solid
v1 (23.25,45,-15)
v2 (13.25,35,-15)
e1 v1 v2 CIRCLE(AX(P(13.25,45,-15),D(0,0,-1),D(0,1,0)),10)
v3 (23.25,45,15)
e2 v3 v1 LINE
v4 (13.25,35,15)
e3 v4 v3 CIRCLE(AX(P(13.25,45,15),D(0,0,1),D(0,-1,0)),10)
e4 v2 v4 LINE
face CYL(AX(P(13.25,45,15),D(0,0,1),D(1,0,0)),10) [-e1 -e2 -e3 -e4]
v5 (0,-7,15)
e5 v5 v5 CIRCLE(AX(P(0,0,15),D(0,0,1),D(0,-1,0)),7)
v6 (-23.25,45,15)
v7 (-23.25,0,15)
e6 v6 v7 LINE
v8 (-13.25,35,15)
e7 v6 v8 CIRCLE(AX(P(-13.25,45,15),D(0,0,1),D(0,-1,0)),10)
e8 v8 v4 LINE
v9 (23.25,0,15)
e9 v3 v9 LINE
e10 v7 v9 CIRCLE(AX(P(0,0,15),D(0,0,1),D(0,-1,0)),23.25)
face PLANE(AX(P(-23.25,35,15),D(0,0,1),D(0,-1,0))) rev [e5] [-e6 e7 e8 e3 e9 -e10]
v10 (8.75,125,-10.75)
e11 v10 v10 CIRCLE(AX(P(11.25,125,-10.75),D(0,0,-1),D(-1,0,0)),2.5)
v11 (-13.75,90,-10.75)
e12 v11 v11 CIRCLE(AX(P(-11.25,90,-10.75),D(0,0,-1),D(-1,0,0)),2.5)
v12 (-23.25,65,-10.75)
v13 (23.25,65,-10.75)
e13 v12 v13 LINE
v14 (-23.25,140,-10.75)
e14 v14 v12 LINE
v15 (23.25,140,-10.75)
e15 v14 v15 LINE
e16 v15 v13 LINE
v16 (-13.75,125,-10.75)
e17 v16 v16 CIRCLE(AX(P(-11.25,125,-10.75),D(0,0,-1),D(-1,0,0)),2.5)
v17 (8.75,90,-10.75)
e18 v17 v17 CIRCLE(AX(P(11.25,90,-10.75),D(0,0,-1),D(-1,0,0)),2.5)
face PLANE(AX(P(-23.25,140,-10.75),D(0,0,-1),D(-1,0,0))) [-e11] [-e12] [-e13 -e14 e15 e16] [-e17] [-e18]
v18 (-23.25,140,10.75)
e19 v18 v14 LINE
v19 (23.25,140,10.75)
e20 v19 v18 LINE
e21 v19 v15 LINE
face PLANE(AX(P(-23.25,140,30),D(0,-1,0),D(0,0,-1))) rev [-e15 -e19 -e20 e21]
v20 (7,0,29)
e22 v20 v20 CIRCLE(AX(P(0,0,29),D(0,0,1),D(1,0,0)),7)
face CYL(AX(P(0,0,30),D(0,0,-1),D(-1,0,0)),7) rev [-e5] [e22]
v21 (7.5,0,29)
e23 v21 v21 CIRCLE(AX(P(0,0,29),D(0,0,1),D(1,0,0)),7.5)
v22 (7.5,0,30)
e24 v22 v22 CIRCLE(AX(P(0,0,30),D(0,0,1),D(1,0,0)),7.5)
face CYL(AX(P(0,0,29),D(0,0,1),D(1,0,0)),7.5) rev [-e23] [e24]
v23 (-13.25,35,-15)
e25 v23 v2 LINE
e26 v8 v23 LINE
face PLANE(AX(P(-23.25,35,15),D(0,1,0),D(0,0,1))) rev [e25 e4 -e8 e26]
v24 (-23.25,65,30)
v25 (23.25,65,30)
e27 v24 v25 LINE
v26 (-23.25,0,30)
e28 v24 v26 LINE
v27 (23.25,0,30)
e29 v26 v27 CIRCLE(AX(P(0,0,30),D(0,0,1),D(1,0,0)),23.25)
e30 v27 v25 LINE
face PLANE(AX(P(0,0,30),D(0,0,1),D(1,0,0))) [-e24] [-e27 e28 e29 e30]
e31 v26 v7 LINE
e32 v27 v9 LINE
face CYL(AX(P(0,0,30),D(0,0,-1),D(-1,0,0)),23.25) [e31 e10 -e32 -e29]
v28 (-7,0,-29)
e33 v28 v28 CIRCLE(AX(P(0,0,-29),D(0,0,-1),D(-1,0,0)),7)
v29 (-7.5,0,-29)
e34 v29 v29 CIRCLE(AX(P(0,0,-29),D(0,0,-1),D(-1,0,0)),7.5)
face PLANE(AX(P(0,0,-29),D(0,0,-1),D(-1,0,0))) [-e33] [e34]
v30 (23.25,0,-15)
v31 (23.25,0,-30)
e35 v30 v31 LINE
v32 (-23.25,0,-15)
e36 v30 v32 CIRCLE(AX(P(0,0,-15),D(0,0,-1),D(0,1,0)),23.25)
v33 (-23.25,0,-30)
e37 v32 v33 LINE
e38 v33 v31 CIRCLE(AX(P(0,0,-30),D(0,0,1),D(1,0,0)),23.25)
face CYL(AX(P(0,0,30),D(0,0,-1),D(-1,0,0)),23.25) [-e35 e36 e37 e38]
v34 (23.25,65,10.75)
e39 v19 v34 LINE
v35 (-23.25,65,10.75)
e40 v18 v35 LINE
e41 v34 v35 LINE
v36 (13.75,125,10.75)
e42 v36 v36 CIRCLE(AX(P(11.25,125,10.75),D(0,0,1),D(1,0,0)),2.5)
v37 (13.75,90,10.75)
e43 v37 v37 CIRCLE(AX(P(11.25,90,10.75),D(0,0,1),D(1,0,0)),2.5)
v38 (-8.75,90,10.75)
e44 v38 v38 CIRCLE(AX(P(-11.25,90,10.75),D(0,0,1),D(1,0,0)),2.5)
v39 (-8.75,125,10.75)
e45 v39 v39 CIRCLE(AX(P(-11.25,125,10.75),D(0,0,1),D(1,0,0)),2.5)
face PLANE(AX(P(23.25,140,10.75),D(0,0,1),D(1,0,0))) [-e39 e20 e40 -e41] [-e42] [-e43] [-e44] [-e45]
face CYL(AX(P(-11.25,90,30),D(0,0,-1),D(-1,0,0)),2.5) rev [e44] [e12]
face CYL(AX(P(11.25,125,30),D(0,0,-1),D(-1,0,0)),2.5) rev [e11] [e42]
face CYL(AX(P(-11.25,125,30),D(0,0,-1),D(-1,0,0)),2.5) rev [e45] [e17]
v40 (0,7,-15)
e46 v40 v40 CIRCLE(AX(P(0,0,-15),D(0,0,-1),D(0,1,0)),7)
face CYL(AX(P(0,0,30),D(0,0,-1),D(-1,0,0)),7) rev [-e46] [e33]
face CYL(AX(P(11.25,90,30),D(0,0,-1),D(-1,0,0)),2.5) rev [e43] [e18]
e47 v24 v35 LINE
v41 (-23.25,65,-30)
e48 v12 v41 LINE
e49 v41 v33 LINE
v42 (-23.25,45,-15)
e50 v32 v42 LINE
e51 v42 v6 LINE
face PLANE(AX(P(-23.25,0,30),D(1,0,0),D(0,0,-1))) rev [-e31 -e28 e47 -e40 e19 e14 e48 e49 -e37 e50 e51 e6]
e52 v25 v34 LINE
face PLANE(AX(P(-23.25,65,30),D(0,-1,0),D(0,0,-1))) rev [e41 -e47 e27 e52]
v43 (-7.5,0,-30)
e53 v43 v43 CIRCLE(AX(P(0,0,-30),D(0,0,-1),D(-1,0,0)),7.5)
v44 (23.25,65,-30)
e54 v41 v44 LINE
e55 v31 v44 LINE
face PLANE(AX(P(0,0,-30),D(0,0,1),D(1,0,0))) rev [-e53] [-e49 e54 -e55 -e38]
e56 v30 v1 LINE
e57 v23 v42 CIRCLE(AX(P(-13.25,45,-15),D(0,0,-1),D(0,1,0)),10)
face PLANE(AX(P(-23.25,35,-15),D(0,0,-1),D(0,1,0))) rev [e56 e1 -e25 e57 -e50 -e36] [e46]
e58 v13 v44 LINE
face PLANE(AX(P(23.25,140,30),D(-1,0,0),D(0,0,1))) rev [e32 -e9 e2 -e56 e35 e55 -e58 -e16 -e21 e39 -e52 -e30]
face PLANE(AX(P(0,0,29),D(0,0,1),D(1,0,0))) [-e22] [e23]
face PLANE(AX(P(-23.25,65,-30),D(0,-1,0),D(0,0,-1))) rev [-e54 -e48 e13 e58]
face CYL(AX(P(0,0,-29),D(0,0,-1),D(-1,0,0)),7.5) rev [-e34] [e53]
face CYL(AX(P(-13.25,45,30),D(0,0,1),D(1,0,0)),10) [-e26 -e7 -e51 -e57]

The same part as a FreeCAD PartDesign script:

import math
import FreeCAD as App
import Part
import Sketcher


def edges_at(feature, points):
    """Names of the edges that pass closest to the given points."""
    edges = feature.Shape.Edges
    near = lambda p: min(range(len(edges)), key=lambda i: edges[i].distToShape(Part.Vertex(*p))[0])
    return sorted({f"Edge{near(p) + 1}" for p in points})

doc = App.newDocument("Part")
body = doc.addObject("PartDesign::Body", "Body")

sketch1 = body.newObject("Sketcher::SketchObject", "Sketch")
sketch1.AttachmentSupport = (doc.getObject("XY_Plane"), [""])
sketch1.MapMode = "FlatFace"
sketch1.addGeometry([
    Part.LineSegment(App.Vector(-23.2, 140, 0), App.Vector(-23.2, 0, 0)),
    Part.ArcOfCircle(Part.Circle(App.Vector(0, 0, 0), App.Vector(0, 0, 1), 23.2), math.radians(180), math.radians(360)),
    Part.LineSegment(App.Vector(23.2, 0, 0), App.Vector(23.2, 140, 0)),
    Part.LineSegment(App.Vector(23.2, 140, 0), App.Vector(-23.2, 140, 0)),
    Part.Circle(App.Vector(0, 0, 0), App.Vector(0, 0, 1), 7),
    Part.Circle(App.Vector(11.2, 90, 0), App.Vector(0, 0, 1), 2.5),
    Part.Circle(App.Vector(11.2, 125, 0), App.Vector(0, 0, 1), 2.5),
    Part.Circle(App.Vector(-11.2, 90, 0), App.Vector(0, 0, 1), 2.5),
    Part.Circle(App.Vector(-11.2, 125, 0), App.Vector(0, 0, 1), 2.5),
], False)
sketch1.addConstraint([
    Sketcher.Constraint("Tangent", 0, 2, 1, 1),
    Sketcher.Constraint("Tangent", 1, 2, 2, 1),
    Sketcher.Constraint("Coincident", 2, 2, 3, 1),
    Sketcher.Constraint("Coincident", 3, 2, 0, 1),
    Sketcher.Constraint("Vertical", 0),
    Sketcher.Constraint("Vertical", 2),
    Sketcher.Constraint("Horizontal", 3),
    Sketcher.Constraint("Coincident", 1, 3, -1, 1),
    Sketcher.Constraint("Coincident", 4, 3, -1, 1),
    Sketcher.Constraint("Equal", 5, 6),
    Sketcher.Constraint("Equal", 6, 7),
    Sketcher.Constraint("Equal", 7, 8),
    Sketcher.Constraint("Symmetric", 5, 3, 7, 3, -2),
    Sketcher.Constraint("Symmetric", 6, 3, 8, 3, -2),
    Sketcher.Constraint("Vertical", 5, 3, 6, 3),
    Sketcher.Constraint("Diameter", 4, 14.0),
    Sketcher.Constraint("Diameter", 5, 5.0),
    Sketcher.Constraint("DistanceY", 0, 2, 0, 1, 140.0),
    Sketcher.Constraint("Radius", 1, 23.25),
    Sketcher.Constraint("DistanceY", -1, 1, 5, 3, 90.0),
    Sketcher.Constraint("DistanceY", -1, 1, 6, 3, 125.0),
    Sketcher.Constraint("DistanceX", 0, 2, 7, 3, 12.0),
])
pad1 = body.newObject("PartDesign::Pad", "Pad")
pad1.Profile = sketch1
pad1.Length = 60
pad1.Midplane = True

sketch2 = body.newObject("Sketcher::SketchObject", "Sketch001")
sketch2.AttachmentSupport = (doc.getObject("YZ_Plane"), [""])
sketch2.MapMode = "FlatFace"
sketch2.AttachmentOffset = App.Placement(App.Vector(0, 0, 23.25), App.Rotation())
sketch2.addGeometry([
    Part.LineSegment(App.Vector(35, 15, 0), App.Vector(-23, 15, 0)),
    Part.LineSegment(App.Vector(-23, 15, 0), App.Vector(-23, -15, 0)),
    Part.LineSegment(App.Vector(-23, -15, 0), App.Vector(35, -15, 0)),
    Part.LineSegment(App.Vector(35, -15, 0), App.Vector(35, 15, 0)),
], False)
sketch2.addConstraint([
    Sketcher.Constraint("Coincident", 0, 2, 1, 1),
    Sketcher.Constraint("Coincident", 1, 2, 2, 1),
    Sketcher.Constraint("Coincident", 2, 2, 3, 1),
    Sketcher.Constraint("Coincident", 3, 2, 0, 1),
    Sketcher.Constraint("Horizontal", 0),
    Sketcher.Constraint("Vertical", 1),
    Sketcher.Constraint("Horizontal", 2),
    Sketcher.Constraint("Vertical", 3),
    Sketcher.Constraint("DistanceY", 1, 2, 1, 1, 30.0),
    Sketcher.Constraint("DistanceY", -1, 1, 0, 2, 15.0),
    Sketcher.Constraint("DistanceX", -1, 1, 2, 2, 35.0),
    Sketcher.Constraint("DistanceX", 0, 2, 0, 1, 58.25),
])
pocket1 = body.newObject("PartDesign::Pocket", "Pocket")
pocket1.Profile = sketch2
pocket1.Type = "ThroughAll"

sketch3 = body.newObject("Sketcher::SketchObject", "Sketch002")
sketch3.AttachmentSupport = (doc.getObject("XY_Plane"), [""])
sketch3.MapMode = "FlatFace"
sketch3.AttachmentOffset = App.Placement(App.Vector(0, 0, 30), App.Rotation())
sketch3.addGeometry(Part.Circle(App.Vector(0, 0, 0), App.Vector(0, 0, 1), 8), False)
sketch3.addConstraint([
    Sketcher.Constraint("Coincident", 0, 3, -1, 1),
    Sketcher.Constraint("Diameter", 0, 15.0),
])
pocket2 = body.newObject("PartDesign::Pocket", "Pocket001")
pocket2.Profile = sketch3
pocket2.Length = 1

sketch4 = body.newObject("Sketcher::SketchObject", "Sketch003")
sketch4.AttachmentSupport = (doc.getObject("XY_Plane"), [""])
sketch4.MapMode = "FlatFace"
sketch4.AttachmentOffset = App.Placement(App.Vector(0, 0, -29), App.Rotation())
sketch4.addGeometry(Part.Circle(App.Vector(0, 0, 0), App.Vector(0, 0, 1), 8), False)
sketch4.addConstraint([
    Sketcher.Constraint("Coincident", 0, 3, -1, 1),
    Sketcher.Constraint("Diameter", 0, 15.0),
])
pocket3 = body.newObject("PartDesign::Pocket", "Pocket002")
pocket3.Profile = sketch4
pocket3.Length = 1

sketch5 = body.newObject("Sketcher::SketchObject", "Sketch004")
sketch5.AttachmentSupport = (doc.getObject("YZ_Plane"), [""])
sketch5.MapMode = "FlatFace"
sketch5.AttachmentOffset = App.Placement(App.Vector(0, 0, 23.25), App.Rotation())
sketch5.addGeometry([
    Part.LineSegment(App.Vector(140, 30, 0), App.Vector(65, 30, 0)),
    Part.LineSegment(App.Vector(65, 30, 0), App.Vector(65, 13, 0)),
    Part.LineSegment(App.Vector(65, 13, 0), App.Vector(140, 13, 0)),
    Part.LineSegment(App.Vector(140, 13, 0), App.Vector(140, 30, 0)),
    Part.LineSegment(App.Vector(140, -13, 0), App.Vector(65, -13, 0)),
    Part.LineSegment(App.Vector(65, -13, 0), App.Vector(65, -30, 0)),
    Part.LineSegment(App.Vector(65, -30, 0), App.Vector(140, -30, 0)),
    Part.LineSegment(App.Vector(140, -30, 0), App.Vector(140, -13, 0)),
], False)
sketch5.addConstraint([
    Sketcher.Constraint("Coincident", 0, 2, 1, 1),
    Sketcher.Constraint("Coincident", 1, 2, 2, 1),
    Sketcher.Constraint("Coincident", 2, 2, 3, 1),
    Sketcher.Constraint("Coincident", 3, 2, 0, 1),
    Sketcher.Constraint("Coincident", 4, 2, 5, 1),
    Sketcher.Constraint("Coincident", 5, 2, 6, 1),
    Sketcher.Constraint("Coincident", 6, 2, 7, 1),
    Sketcher.Constraint("Coincident", 7, 2, 4, 1),
    Sketcher.Constraint("Horizontal", 0),
    Sketcher.Constraint("Vertical", 1),
    Sketcher.Constraint("Horizontal", 2),
    Sketcher.Constraint("Vertical", 3),
    Sketcher.Constraint("Horizontal", 4),
    Sketcher.Constraint("Vertical", 5),
    Sketcher.Constraint("Horizontal", 6),
    Sketcher.Constraint("Vertical", 7),
    Sketcher.Constraint("Symmetric", 1, 2, 4, 2, -1),
    Sketcher.Constraint("Symmetric", 3, 2, 6, 2, -1),
    Sketcher.Constraint("DistanceX", 0, 2, 0, 1, 75.0),
    Sketcher.Constraint("DistanceY", 1, 2, 1, 1, 17.3),
    Sketcher.Constraint("DistanceX", -1, 1, 0, 2, 65.0),
    Sketcher.Constraint("DistanceY", -1, 1, 0, 2, 30.0),
])
pocket4 = body.newObject("PartDesign::Pocket", "Pocket003")
pocket4.Profile = sketch5
pocket4.Type = "ThroughAll"

sketch6 = body.newObject("Sketcher::SketchObject", "Sketch005")
sketch6.AttachmentSupport = (doc.getObject("XZ_Plane"), [""])
sketch6.MapMode = "FlatFace"
sketch6.AttachmentOffset = App.Placement(App.Vector(0, 0, -65), App.Rotation())
sketch6.addGeometry([
    Part.LineSegment(App.Vector(-23.2, -12.7, 0), App.Vector(-23.2, -10.8, 0)),
    Part.LineSegment(App.Vector(-23.2, -10.8, 0), App.Vector(23.2, -10.8, 0)),
    Part.LineSegment(App.Vector(23.2, -10.8, 0), App.Vector(23.2, -12.7, 0)),
    Part.LineSegment(App.Vector(23.2, -12.7, 0), App.Vector(-23.2, -12.7, 0)),
    Part.LineSegment(App.Vector(-23.2, 10.8, 0), App.Vector(-23.2, 12.7, 0)),
    Part.LineSegment(App.Vector(-23.2, 12.7, 0), App.Vector(23.2, 12.7, 0)),
    Part.LineSegment(App.Vector(23.2, 12.7, 0), App.Vector(23.2, 10.8, 0)),
    Part.LineSegment(App.Vector(23.2, 10.8, 0), App.Vector(-23.2, 10.8, 0)),
], False)
sketch6.addConstraint([
    Sketcher.Constraint("Coincident", 0, 2, 1, 1),
    Sketcher.Constraint("Coincident", 1, 2, 2, 1),
    Sketcher.Constraint("Coincident", 2, 2, 3, 1),
    Sketcher.Constraint("Coincident", 3, 2, 0, 1),
    Sketcher.Constraint("Coincident", 4, 2, 5, 1),
    Sketcher.Constraint("Coincident", 5, 2, 6, 1),
    Sketcher.Constraint("Coincident", 6, 2, 7, 1),
    Sketcher.Constraint("Coincident", 7, 2, 4, 1),
    Sketcher.Constraint("Vertical", 0),
    Sketcher.Constraint("Horizontal", 1),
    Sketcher.Constraint("Vertical", 2),
    Sketcher.Constraint("Horizontal", 3),
    Sketcher.Constraint("Vertical", 4),
    Sketcher.Constraint("Horizontal", 5),
    Sketcher.Constraint("Vertical", 6),
    Sketcher.Constraint("Horizontal", 7),
    Sketcher.Constraint("Symmetric", 2, 2, 4, 2, -1, 1),
    Sketcher.Constraint("Symmetric", 0, 2, 6, 2, -1, 1),
    Sketcher.Constraint("Vertical", 3, 2, 4, 2),
    Sketcher.Constraint("DistanceX", 1, 1, 1, 2, 46.5),
    Sketcher.Constraint("DistanceY", 0, 1, 0, 2, 1.95),
    Sketcher.Constraint("DistanceY", 2, 2, -1, 1, 12.7),
])
pocket5 = body.newObject("PartDesign::Pocket", "Pocket004")
pocket5.Profile = sketch6
pocket5.Type = "ThroughAll"
doc.recompute()

fillet = body.newObject("PartDesign::Fillet", "Fillet")
fillet.Base = (pocket5, edges_at(pocket5, [(23.25, 35, 0), (-23.25, 35, 0)]))
fillet.Radius = 10

doc.recompute()
